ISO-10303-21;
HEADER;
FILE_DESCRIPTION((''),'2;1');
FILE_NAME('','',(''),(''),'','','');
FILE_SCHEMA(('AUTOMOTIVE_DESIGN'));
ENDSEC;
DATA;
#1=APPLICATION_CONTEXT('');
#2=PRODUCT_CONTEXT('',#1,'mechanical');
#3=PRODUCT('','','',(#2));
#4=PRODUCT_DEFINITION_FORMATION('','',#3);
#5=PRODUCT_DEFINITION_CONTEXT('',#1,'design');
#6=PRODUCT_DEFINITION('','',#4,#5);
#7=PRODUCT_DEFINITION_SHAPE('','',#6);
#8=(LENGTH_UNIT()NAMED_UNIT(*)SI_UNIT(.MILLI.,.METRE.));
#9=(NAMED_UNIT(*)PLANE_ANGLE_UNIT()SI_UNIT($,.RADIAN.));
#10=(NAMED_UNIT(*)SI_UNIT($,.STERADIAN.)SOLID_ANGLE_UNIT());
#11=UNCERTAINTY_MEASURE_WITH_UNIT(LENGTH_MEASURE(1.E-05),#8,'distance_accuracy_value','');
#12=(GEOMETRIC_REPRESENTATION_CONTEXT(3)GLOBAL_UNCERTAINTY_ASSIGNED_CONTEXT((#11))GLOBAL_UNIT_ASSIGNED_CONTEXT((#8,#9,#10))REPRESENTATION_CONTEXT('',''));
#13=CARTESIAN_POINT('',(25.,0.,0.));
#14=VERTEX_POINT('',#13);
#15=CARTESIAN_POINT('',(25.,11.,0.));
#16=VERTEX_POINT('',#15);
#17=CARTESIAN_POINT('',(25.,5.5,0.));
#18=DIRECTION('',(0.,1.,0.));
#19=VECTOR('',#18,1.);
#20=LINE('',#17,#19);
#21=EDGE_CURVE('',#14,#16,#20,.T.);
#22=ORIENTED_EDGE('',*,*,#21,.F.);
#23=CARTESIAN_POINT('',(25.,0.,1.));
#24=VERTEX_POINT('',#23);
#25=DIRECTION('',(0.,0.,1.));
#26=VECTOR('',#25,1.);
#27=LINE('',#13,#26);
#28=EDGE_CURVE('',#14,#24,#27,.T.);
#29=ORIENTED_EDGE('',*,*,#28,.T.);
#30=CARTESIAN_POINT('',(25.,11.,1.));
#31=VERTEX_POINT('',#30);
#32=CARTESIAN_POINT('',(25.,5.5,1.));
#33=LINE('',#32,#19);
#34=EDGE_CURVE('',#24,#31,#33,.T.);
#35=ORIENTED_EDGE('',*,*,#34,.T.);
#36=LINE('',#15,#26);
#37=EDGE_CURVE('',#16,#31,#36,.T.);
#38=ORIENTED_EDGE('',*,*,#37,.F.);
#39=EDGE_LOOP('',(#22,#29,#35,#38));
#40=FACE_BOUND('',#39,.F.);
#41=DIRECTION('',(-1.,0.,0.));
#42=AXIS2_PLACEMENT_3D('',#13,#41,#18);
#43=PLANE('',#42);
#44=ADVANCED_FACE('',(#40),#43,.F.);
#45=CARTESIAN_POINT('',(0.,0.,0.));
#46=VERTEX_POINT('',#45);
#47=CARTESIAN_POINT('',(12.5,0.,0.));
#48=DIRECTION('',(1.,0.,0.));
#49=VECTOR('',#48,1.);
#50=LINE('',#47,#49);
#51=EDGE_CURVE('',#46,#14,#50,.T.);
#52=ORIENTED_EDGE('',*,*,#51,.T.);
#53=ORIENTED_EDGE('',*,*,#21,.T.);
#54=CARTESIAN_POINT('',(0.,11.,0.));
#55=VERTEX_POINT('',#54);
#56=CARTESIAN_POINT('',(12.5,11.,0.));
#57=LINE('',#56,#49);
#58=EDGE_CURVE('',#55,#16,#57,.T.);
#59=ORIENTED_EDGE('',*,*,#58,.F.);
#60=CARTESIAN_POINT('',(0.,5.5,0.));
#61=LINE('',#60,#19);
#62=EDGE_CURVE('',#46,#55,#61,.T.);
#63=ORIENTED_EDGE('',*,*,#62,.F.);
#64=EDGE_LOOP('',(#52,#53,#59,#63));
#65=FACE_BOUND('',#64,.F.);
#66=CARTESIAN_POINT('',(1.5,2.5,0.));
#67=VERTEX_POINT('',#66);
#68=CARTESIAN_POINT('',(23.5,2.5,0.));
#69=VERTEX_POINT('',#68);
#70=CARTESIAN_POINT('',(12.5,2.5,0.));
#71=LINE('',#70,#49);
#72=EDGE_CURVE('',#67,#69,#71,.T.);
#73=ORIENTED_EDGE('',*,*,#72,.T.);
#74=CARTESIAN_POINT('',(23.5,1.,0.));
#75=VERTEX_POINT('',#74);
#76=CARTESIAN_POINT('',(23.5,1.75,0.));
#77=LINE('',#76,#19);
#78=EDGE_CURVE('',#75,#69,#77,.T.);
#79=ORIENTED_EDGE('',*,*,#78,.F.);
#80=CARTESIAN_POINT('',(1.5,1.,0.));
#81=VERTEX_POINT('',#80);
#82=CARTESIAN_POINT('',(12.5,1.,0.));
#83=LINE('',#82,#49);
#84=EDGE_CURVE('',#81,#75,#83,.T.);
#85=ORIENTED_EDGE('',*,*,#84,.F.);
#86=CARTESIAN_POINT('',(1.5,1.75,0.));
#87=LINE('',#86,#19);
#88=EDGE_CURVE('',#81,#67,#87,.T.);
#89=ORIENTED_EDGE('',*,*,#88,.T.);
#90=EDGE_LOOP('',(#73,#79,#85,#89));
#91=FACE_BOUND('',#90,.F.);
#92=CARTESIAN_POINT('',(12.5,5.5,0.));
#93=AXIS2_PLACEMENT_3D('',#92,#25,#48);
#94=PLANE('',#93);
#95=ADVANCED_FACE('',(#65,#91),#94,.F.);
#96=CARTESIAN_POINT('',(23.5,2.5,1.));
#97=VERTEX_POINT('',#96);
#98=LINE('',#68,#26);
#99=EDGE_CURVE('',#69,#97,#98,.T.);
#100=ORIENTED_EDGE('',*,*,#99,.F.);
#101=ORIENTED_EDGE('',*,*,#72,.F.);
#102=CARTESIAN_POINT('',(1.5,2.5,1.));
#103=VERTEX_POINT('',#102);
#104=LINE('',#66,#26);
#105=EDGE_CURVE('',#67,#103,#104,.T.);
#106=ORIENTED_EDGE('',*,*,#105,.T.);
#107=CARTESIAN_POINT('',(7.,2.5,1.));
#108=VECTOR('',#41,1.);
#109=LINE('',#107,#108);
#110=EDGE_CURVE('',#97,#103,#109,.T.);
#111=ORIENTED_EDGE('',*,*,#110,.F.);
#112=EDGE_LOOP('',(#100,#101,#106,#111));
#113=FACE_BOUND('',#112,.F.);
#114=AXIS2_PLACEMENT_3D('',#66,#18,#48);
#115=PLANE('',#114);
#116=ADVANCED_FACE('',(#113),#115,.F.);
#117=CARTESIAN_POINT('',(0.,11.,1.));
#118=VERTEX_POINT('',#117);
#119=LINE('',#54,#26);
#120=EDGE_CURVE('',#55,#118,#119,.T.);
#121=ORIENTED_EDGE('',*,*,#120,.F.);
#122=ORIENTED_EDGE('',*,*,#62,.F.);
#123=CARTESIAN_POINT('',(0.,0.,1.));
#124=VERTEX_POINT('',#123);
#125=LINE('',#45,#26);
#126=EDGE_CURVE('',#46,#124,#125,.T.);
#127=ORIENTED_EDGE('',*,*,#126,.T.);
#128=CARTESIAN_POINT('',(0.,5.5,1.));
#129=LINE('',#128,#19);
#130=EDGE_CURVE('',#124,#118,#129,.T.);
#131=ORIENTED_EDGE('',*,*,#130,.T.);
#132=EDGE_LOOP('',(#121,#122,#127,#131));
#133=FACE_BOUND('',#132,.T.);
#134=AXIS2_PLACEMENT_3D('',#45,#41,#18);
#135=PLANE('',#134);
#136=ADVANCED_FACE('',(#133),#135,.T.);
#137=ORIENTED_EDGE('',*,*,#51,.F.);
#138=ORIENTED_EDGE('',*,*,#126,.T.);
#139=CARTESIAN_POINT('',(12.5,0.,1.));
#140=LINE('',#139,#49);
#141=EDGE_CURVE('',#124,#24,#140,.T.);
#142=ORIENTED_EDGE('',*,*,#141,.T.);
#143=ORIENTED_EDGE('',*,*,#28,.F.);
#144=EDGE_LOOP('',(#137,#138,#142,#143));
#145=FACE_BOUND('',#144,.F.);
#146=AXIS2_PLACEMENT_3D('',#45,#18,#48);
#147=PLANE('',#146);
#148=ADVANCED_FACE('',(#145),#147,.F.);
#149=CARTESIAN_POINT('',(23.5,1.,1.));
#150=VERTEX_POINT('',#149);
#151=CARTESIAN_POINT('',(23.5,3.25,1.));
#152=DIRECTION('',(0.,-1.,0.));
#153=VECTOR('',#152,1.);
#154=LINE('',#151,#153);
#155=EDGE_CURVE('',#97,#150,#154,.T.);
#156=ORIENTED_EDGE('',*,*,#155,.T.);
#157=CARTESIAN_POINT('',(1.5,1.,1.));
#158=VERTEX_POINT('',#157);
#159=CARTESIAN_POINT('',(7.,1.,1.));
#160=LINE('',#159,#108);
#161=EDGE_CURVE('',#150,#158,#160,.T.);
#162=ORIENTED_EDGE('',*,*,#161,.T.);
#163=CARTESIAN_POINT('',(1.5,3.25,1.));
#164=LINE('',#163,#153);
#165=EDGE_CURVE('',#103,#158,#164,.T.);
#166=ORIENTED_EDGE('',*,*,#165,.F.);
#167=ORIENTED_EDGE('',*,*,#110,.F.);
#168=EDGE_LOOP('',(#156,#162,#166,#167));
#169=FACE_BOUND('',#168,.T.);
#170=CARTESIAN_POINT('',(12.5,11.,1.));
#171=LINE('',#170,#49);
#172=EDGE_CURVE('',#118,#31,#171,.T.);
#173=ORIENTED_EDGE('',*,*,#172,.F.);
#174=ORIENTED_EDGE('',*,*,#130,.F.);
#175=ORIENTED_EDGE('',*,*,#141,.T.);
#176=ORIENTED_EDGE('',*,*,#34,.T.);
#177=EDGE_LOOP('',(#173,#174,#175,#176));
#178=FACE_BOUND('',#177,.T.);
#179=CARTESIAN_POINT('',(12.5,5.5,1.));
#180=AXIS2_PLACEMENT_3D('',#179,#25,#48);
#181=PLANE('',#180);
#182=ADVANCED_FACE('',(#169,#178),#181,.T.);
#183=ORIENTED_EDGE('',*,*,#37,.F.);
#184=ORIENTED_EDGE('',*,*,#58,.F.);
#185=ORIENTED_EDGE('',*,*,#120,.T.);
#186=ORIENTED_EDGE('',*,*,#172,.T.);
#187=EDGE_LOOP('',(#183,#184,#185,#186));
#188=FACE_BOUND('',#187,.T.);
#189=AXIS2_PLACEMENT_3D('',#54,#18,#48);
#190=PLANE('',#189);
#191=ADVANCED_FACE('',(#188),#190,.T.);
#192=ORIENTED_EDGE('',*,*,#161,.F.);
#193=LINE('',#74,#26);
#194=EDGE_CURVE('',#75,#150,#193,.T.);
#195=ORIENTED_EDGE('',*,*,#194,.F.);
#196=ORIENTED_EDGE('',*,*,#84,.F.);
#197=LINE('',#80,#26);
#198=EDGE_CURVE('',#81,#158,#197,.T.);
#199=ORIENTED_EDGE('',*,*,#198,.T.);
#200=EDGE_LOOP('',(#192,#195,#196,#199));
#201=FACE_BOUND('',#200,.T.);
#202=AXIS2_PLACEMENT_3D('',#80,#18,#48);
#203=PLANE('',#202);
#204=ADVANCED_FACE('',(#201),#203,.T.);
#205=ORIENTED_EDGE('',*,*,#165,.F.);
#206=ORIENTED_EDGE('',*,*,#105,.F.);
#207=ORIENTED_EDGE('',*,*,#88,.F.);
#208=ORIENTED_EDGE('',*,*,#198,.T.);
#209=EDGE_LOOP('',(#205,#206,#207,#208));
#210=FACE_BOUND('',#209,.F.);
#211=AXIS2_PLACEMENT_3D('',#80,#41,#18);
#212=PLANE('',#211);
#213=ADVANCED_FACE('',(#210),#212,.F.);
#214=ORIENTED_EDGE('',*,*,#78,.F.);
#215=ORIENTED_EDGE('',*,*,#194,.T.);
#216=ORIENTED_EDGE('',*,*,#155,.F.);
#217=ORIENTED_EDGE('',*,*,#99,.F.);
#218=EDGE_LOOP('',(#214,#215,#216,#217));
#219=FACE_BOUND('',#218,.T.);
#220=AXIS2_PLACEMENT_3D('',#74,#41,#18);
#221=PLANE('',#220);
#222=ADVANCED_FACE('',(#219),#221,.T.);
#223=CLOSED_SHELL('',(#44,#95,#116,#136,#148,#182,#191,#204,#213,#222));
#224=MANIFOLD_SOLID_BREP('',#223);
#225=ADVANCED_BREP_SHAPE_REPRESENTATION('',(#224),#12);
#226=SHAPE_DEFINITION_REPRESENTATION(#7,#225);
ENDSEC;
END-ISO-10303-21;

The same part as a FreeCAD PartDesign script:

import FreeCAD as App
import Part
import Sketcher

V = App.Vector

doc = App.newDocument("Part")
body = doc.addObject("PartDesign::Body", "Body")

sketch1 = body.newObject("Sketcher::SketchObject", "Sketch")
sketch1.AttachmentSupport = (doc.getObject("XY_Plane"), [""])
sketch1.MapMode = "FlatFace"
sketch1.addGeometry([
    Part.LineSegment(V(1.5, 2.5, 0), V(1.5, 1, 0)),
    Part.LineSegment(V(1.5, 1, 0), V(23.5, 1, 0)),
    Part.LineSegment(V(23.5, 1, 0), V(23.5, 2.5, 0)),
    Part.LineSegment(V(23.5, 2.5, 0), V(1.5, 2.5, 0)),
], False)
sketch1.addConstraint([
    Sketcher.Constraint("Coincident", 0, 2, 1, 1),
    Sketcher.Constraint("Coincident", 1, 2, 2, 1),
    Sketcher.Constraint("Coincident", 2, 2, 3, 1),
    Sketcher.Constraint("Coincident", 3, 2, 0, 1),
    Sketcher.Constraint("Vertical", 0),
    Sketcher.Constraint("Horizontal", 1),
    Sketcher.Constraint("Vertical", 2),
    Sketcher.Constraint("Horizontal", 3),
    Sketcher.Constraint("DistanceX", 1, 1, 1, 2, 22.0),
    Sketcher.Constraint("DistanceY", 0, 2, 0, 1, 1.5),
    Sketcher.Constraint("DistanceY", -1, 1, 0, 2, 1.0),
    Sketcher.Constraint("DistanceX", -1, 1, 0, 2, 1.5),
])
pad1 = body.newObject("PartDesign::Pad", "Pad")
pad1.Profile = sketch1
pad1.Length = 2
body2 = doc.addObject("PartDesign::Body", "Body001")

sketch2 = body2.newObject("Sketcher::SketchObject", "Sketch001")
sketch2.AttachmentSupport = (doc.getObject("XY_Plane001"), [""])
sketch2.MapMode = "FlatFace"
sketch2.addGeometry([
    Part.LineSegment(V(0, 11, 0), V(0, 0, 0)),
    Part.LineSegment(V(0, 0, 0), V(25, 0, 0)),
    Part.LineSegment(V(25, 0, 0), V(25, 11, 0)),
    Part.LineSegment(V(25, 11, 0), V(0, 11, 0)),
], False)
sketch2.addConstraint([
    Sketcher.Constraint("Coincident", 0, 2, 1, 1),
    Sketcher.Constraint("Coincident", 1, 2, 2, 1),
    Sketcher.Constraint("Coincident", 2, 2, 3, 1),
    Sketcher.Constraint("Coincident", 3, 2, 0, 1),
    Sketcher.Constraint("Vertical", 0),
    Sketcher.Constraint("Horizontal", 1),
    Sketcher.Constraint("Vertical", 2),
    Sketcher.Constraint("Horizontal", 3),
    Sketcher.Constraint("Coincident", 0, 2, -1, 1),
    Sketcher.Constraint("DistanceX", 1, 1, 1, 2, 25.0),
    Sketcher.Constraint("DistanceY", 0, 2, 0, 1, 11.0),
])
pad2 = body2.newObject("PartDesign::Pad", "Pad001")
pad2.Profile = sketch2
pad2.Length = 1
doc.recompute()

boolean = body2.newObject("PartDesign::Boolean", "Boolean")
boolean.Type = "Cut"
boolean.addObjects([body])

doc.recompute()
